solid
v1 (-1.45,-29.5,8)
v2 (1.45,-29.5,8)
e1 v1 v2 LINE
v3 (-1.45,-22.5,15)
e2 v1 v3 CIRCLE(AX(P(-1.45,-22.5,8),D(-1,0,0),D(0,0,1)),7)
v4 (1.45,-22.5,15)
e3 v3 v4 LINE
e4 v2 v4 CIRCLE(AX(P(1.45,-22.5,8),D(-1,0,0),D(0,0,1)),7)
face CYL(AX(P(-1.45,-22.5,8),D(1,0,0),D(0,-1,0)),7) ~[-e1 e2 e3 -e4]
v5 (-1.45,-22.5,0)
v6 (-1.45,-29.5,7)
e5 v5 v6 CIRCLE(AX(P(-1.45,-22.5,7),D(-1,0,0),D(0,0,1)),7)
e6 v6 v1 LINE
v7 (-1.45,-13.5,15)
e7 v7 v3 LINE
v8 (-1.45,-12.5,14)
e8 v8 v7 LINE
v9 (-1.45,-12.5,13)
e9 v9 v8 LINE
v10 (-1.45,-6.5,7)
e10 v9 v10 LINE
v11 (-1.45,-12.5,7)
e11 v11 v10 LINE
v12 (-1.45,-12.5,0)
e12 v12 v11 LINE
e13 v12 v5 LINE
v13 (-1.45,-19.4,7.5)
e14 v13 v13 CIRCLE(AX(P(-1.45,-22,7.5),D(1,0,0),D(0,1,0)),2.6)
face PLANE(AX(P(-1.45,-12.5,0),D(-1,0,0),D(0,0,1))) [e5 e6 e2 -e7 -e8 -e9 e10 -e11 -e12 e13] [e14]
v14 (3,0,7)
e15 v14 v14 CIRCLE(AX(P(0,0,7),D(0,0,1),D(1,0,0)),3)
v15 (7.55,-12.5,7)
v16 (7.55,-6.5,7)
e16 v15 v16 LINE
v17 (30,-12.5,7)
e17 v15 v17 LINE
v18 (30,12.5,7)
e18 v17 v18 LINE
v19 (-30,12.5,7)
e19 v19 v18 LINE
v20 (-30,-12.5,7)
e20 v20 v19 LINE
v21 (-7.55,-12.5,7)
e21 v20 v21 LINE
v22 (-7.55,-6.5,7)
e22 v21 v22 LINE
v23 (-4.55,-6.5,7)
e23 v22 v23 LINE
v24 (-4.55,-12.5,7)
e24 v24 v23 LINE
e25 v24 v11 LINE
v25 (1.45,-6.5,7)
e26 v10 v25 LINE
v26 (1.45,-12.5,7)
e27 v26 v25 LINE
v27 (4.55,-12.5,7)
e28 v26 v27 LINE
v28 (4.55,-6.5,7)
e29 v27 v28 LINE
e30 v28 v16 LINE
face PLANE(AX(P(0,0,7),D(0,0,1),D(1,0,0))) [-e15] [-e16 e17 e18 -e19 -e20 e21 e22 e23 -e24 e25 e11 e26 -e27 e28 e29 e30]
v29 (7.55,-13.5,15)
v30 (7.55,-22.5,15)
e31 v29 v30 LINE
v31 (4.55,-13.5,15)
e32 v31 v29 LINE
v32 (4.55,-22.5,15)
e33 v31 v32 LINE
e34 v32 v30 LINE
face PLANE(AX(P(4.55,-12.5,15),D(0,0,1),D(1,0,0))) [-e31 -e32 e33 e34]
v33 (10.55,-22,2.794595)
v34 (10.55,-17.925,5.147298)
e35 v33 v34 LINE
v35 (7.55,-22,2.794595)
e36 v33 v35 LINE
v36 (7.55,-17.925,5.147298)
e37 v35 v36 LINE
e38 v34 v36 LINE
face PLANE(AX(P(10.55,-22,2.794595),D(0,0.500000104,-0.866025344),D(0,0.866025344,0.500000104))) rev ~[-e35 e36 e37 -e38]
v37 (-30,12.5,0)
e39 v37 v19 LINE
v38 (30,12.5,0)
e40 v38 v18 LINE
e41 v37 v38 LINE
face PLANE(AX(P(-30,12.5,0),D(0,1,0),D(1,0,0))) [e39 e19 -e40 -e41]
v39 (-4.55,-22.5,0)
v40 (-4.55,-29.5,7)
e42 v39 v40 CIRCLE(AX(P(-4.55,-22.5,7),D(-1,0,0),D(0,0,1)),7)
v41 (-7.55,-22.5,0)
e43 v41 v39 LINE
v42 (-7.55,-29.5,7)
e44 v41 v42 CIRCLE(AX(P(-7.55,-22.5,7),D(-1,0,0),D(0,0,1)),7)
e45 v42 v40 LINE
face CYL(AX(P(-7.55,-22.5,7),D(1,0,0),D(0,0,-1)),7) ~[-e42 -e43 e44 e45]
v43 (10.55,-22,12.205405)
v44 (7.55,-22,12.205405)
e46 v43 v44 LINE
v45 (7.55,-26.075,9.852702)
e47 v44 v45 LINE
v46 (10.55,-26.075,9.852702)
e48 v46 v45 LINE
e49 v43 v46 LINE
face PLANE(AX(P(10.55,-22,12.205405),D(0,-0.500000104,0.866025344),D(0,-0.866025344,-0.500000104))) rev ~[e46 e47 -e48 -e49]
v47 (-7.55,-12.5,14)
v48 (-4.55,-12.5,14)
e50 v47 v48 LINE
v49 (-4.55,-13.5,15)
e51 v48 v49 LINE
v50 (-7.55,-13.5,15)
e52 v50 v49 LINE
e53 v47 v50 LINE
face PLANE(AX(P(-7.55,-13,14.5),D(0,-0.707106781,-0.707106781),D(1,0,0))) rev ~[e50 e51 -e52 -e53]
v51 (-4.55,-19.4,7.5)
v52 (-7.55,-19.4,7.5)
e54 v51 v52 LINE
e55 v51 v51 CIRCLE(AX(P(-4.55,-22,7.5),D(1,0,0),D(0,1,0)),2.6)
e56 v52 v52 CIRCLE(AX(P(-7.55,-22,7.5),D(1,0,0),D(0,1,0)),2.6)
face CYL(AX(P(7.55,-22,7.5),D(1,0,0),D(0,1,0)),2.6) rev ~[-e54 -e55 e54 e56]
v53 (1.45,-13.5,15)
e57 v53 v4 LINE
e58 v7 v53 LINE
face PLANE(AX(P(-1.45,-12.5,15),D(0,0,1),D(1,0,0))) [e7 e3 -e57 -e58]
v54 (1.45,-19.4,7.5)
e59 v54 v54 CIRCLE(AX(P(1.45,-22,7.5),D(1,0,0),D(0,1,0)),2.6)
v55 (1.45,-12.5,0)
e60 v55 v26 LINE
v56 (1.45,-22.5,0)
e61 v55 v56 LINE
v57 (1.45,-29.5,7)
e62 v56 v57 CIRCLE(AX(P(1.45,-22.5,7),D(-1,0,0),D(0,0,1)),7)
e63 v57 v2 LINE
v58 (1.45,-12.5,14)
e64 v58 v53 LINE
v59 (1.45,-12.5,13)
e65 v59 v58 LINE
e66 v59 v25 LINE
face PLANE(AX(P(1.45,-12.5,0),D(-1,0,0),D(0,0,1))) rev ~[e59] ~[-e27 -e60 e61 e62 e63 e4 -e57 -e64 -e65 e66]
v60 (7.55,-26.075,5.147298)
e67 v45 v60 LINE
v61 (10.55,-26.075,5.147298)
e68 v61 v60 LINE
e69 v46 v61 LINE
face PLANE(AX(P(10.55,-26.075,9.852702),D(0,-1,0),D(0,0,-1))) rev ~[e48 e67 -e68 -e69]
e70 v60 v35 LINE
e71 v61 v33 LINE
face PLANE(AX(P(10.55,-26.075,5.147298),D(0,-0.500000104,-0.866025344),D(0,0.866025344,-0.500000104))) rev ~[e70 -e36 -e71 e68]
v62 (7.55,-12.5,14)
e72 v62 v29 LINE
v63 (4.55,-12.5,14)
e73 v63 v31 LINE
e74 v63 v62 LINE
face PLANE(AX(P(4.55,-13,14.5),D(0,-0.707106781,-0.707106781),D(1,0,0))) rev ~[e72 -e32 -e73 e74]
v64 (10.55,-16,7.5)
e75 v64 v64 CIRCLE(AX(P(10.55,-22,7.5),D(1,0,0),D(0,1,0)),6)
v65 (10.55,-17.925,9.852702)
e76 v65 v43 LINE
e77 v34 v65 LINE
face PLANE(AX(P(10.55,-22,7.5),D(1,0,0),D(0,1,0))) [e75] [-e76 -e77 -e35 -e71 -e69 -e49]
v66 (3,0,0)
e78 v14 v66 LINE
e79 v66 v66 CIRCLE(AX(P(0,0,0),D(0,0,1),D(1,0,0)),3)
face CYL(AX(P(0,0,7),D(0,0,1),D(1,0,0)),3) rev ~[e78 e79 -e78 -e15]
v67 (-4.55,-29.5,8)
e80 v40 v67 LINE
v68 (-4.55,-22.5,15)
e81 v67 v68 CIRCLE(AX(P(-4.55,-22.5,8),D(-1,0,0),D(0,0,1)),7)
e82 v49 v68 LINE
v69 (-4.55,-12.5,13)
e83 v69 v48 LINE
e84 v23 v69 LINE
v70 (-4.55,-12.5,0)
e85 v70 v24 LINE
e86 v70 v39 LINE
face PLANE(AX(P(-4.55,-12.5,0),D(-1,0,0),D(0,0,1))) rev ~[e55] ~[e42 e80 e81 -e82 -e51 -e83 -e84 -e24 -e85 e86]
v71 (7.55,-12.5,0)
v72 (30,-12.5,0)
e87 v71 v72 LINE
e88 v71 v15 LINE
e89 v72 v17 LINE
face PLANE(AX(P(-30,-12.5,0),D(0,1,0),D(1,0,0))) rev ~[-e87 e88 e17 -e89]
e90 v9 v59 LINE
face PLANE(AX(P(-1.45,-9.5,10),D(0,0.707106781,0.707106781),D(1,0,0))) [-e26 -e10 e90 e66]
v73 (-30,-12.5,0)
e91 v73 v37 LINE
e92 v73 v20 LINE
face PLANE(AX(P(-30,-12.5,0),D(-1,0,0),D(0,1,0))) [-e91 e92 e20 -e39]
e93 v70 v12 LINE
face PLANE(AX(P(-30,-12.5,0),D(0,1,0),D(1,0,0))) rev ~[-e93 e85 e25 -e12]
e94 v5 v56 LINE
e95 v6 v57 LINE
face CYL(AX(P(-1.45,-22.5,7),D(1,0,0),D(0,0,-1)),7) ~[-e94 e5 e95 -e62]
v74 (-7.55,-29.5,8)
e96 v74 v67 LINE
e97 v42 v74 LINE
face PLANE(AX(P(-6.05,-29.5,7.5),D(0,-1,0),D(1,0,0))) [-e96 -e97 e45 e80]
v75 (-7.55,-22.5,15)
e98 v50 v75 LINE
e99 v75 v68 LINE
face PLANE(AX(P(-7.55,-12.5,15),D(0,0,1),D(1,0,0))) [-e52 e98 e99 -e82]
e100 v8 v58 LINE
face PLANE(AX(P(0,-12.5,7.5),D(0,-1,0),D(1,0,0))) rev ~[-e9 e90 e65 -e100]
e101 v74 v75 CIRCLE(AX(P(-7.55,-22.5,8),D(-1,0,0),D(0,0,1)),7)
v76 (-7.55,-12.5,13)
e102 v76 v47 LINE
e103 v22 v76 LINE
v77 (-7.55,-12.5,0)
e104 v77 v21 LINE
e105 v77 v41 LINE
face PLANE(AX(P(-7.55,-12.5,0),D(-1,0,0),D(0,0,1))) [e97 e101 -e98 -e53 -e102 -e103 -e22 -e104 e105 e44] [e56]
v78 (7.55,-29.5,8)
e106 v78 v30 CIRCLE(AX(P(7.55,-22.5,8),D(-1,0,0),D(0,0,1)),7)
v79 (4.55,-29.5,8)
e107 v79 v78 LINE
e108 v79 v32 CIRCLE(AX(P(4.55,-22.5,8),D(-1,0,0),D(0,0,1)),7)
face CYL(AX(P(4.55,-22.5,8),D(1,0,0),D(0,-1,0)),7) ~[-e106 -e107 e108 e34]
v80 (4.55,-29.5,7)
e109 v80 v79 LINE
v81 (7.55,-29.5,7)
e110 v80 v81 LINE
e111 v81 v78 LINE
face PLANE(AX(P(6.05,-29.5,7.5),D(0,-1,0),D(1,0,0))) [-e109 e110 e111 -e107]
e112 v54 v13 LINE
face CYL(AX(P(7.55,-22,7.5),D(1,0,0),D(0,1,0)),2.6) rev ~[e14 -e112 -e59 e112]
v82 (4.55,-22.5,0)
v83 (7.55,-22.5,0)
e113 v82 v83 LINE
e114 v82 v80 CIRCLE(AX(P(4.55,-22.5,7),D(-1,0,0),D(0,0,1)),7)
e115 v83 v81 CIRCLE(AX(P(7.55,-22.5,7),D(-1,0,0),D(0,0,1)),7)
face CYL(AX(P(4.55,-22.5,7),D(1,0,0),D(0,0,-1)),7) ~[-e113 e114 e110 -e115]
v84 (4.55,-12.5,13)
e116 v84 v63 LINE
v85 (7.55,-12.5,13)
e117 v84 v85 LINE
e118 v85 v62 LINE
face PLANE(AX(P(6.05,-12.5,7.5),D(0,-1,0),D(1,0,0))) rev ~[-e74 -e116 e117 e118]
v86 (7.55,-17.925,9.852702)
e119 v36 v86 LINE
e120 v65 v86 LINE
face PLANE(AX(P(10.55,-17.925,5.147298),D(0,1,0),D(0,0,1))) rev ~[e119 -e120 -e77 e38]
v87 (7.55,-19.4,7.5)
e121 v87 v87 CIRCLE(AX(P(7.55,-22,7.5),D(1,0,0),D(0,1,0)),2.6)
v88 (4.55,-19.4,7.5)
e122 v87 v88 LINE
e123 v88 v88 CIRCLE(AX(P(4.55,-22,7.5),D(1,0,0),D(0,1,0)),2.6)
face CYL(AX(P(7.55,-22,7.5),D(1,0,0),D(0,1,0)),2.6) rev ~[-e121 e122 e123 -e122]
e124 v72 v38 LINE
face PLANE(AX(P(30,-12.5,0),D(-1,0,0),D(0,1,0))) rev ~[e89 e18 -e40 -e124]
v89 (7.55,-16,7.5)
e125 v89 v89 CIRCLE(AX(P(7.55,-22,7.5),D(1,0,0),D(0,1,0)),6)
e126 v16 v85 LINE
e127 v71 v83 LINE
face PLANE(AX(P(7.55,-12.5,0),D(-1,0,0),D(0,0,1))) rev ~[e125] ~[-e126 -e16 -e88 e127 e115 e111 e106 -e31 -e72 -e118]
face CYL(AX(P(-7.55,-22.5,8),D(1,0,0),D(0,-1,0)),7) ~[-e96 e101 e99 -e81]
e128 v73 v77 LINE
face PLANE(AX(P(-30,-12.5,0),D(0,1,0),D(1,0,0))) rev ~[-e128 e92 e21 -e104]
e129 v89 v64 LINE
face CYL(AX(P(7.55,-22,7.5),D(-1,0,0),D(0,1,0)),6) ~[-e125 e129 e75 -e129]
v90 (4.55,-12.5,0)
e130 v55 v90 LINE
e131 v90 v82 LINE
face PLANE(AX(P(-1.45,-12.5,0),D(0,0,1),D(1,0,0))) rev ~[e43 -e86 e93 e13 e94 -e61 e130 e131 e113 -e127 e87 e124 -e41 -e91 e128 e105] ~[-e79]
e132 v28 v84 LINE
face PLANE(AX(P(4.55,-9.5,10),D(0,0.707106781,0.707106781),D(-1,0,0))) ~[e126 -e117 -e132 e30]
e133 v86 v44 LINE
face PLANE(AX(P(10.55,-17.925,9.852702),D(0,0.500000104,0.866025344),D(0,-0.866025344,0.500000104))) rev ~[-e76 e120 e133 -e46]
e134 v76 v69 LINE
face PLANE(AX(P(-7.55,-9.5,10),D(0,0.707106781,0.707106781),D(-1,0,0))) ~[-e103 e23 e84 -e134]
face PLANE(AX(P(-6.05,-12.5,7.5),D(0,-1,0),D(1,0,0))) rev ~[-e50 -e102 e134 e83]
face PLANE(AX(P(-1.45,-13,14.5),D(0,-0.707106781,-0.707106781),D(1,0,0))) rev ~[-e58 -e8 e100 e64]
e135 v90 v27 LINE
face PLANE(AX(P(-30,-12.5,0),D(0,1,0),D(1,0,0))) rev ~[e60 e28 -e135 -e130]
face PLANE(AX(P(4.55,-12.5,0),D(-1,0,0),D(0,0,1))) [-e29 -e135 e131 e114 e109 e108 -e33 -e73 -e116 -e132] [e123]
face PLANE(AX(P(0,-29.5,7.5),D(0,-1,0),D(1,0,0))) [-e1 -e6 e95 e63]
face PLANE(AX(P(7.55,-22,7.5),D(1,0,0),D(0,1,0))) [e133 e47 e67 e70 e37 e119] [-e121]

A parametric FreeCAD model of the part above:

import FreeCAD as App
import Part
import Sketcher
from FreeCAD import Vector
Q = App.Units.Quantity


def edges_at(feature, points):
    """Names of the edges that pass closest to the given points."""
    edges = feature.Shape.Edges
    near = lambda p: min(range(len(edges)), key=lambda i: edges[i].distToShape(Part.Vertex(*p))[0])
    return sorted({f"Edge{near(p) + 1}" for p in points})


def add_polygon(sketch, points):
    """Adds a closed chain of lines whose ends are joined by coincident constraints."""
    first, n = sketch.GeometryCount, len(points)
    for a, b in zip(points, points[1:] + points[:1]):
        sketch.addGeometry(Part.LineSegment(App.Vector(*a, 0), App.Vector(*b, 0)), False)
    for i in range(n):
        sketch.addConstraint(Sketcher.Constraint("Coincident", first + i, 2, first + (i + 1) % n, 1))

doc = App.newDocument("Part")
body = doc.addObject("PartDesign::Body", "Body")

# Sketch on XY plane
sketch1 = body.newObject("Sketcher::SketchObject", "Sketch")
sketch1.AttachmentSupport = (doc.getObject("XY_Plane"), [""])
sketch1.MapMode = "FlatFace"
add_polygon(sketch1, [(-30, 12), (-30, -12), (30, -12), (30, 12)])  # lines 0-3
sketch1.addConstraint(Sketcher.Constraint("Vertical", 0))
sketch1.addConstraint(Sketcher.Constraint("Horizontal", 1))
sketch1.addConstraint(Sketcher.Constraint("Vertical", 2))
sketch1.addConstraint(Sketcher.Constraint("Horizontal", 3))
sketch1.addConstraint(Sketcher.Constraint("Symmetric", 0, 2, 2, 2, -1, 1))
sketch1.addConstraint(Sketcher.Constraint("DistanceX", 1, 1, 1, 2, Q("60 mm")))
sketch1.addConstraint(Sketcher.Constraint("DistanceY", 0, 2, 0, 1, Q("25 mm")))
pad1 = body.newObject("PartDesign::Pad", "Pad")
pad1.Profile = sketch1
pad1.Length = 7

# Sketch on XY plane
sketch2 = body.newObject("Sketcher::SketchObject", "Sketch001")
sketch2.AttachmentSupport = (doc.getObject("XY_Plane"), [""])
sketch2.MapMode = "FlatFace"
sketch2.AttachmentOffset = App.Placement(Vector(0, 0, 7), App.Rotation())
sketch2.addGeometry(Part.Circle(Vector(0, 0, 0), Vector(0, 0, 1), 3), False)
sketch2.addConstraint(Sketcher.Constraint("Coincident", 0, 3, -1, 1))
sketch2.addConstraint(Sketcher.Constraint("Diameter", 0, Q("6 mm")))
pocket1 = body.newObject("PartDesign::Pocket", "Pocket")
pocket1.Profile = sketch2
pocket1.Type = "ThroughAll"

# Sketch on XZ plane
sketch3 = body.newObject("Sketcher::SketchObject", "Sketch002")
sketch3.AttachmentSupport = (doc.getObject("XZ_Plane"), [""])
sketch3.MapMode = "FlatFace"
sketch3.AttachmentOffset = App.Placement(Vector(0, 0, 12.5), App.Rotation())
add_polygon(sketch3, [(-1.4, 15), (-1.4, 0), (1.4, 0), (1.4, 15)])  # lines 0-3
add_polygon(sketch3, [(4.5, 15), (4.5, 0), (7.5, 0), (7.5, 15)])  # lines 4-7
add_polygon(sketch3, [(-7.5, 15), (-7.5, 0), (-4.5, 0), (-4.5, 15)])  # lines 8-11
sketch3.addConstraint(Sketcher.Constraint("Vertical", 0))
sketch3.addConstraint(Sketcher.Constraint("Horizontal", 1))
sketch3.addConstraint(Sketcher.Constraint("Vertical", 2))
sketch3.addConstraint(Sketcher.Constraint("Horizontal", 3))
sketch3.addConstraint(Sketcher.Constraint("Vertical", 4))
sketch3.addConstraint(Sketcher.Constraint("Horizontal", 5))
sketch3.addConstraint(Sketcher.Constraint("Vertical", 6))
sketch3.addConstraint(Sketcher.Constraint("Horizontal", 7))
sketch3.addConstraint(Sketcher.Constraint("Vertical", 8))
sketch3.addConstraint(Sketcher.Constraint("Horizontal", 9))
sketch3.addConstraint(Sketcher.Constraint("Vertical", 10))
sketch3.addConstraint(Sketcher.Constraint("Horizontal", 11))
sketch3.addConstraint(Sketcher.Constraint("Symmetric", 0, 2, 1, 2, -1, 1))
sketch3.addConstraint(Sketcher.Constraint("Symmetric", 5, 2, 8, 2, -1, 1))
sketch3.addConstraint(Sketcher.Constraint("Symmetric", 4, 2, 9, 2, -2))
sketch3.addConstraint(Sketcher.Constraint("Horizontal", 3, 2, 6, 2))
sketch3.addConstraint(Sketcher.Constraint("Horizontal", 7, 2, 10, 2))
sketch3.addConstraint(Sketcher.Constraint("DistanceX", 5, 1, 5, 2, Q("3 mm")))
sketch3.addConstraint(Sketcher.Constraint("DistanceY", 0, 2, 0, 1, Q("15 mm")))
sketch3.addConstraint(Sketcher.Constraint("DistanceX", 1, 1, 1, 2, Q("2.9 mm")))
sketch3.addConstraint(Sketcher.Constraint("DistanceX", 0, 2, 4, 2, Q("6 mm")))
pad2 = body.newObject("PartDesign::Pad", "Pad001")
pad2.Profile = sketch3
pad2.Length = 17

# Sketch on YZ plane
sketch4 = body.newObject("Sketcher::SketchObject", "Sketch003")
sketch4.AttachmentSupport = (doc.getObject("YZ_Plane"), [""])
sketch4.MapMode = "FlatFace"
sketch4.AttachmentOffset = App.Placement(Vector(0, 0, 7.55), App.Rotation())
sketch4.addGeometry(Part.Circle(Vector(-22, 8, 0), Vector(0, 0, 1), 6), False)
sketch4.addConstraint(Sketcher.Constraint("Diameter", 0, Q("12 mm")))
sketch4.addConstraint(Sketcher.Constraint("DistanceX", 0, 3, -1, 1, Q("22 mm")))
sketch4.addConstraint(Sketcher.Constraint("DistanceY", -1, 1, 0, 3, Q("7.5 mm")))
pad3 = body.newObject("PartDesign::Pad", "Pad002")
pad3.Profile = sketch4
pad3.Length = 3

# Sketch on YZ plane
sketch5 = body.newObject("Sketcher::SketchObject", "Sketch004")
sketch5.AttachmentSupport = (doc.getObject("YZ_Plane"), [""])
sketch5.MapMode = "FlatFace"
sketch5.AttachmentOffset = App.Placement(Vector(0, 0, 10.55), App.Rotation())
add_polygon(sketch5, [(-17.9, 9.9), (-22, 12.2), (-26.1, 9.9), (-26.1, 5.1), (-22, 2.8), (-17.9, 5.1)])  # lines 0-5
sketch5.addConstraint(Sketcher.Constraint("Vertical", 2))
sketch5.addConstraint(Sketcher.Constraint("Vertical", 5))
sketch5.addConstraint(Sketcher.Constraint("Parallel", 0, 3))
sketch5.addConstraint(Sketcher.Constraint("Parallel", 1, 4))
sketch5.addConstraint(Sketcher.Constraint("Horizontal", 2, 2, 4, 2))
sketch5.addConstraint(Sketcher.Constraint("Horizontal", 1, 2, 5, 2))
sketch5.addConstraint(Sketcher.Constraint("Vertical", 0, 2, 3, 2))
sketch5.addConstraint(Sketcher.Constraint("Angle", 0, Q("149.999993 deg")))
sketch5.addConstraint(Sketcher.Constraint("DistanceX", 0, 2, -1, 1, Q("22 mm")))
sketch5.addConstraint(Sketcher.Constraint("DistanceX", 2, 2, 4, 2, Q("8.15 mm")))
sketch5.addConstraint(Sketcher.Constraint("DistanceY", 2, 2, 2, 1, Q("4.705404 mm")))
sketch5.addConstraint(Sketcher.Constraint("DistanceY", -1, 1, 0, 2, Q("12.205405 mm")))
pocket2 = body.newObject("PartDesign::Pocket", "Pocket001")
pocket2.Profile = sketch5
pocket2.Length = 3

# Sketch on YZ plane
sketch6 = body.newObject("Sketcher::SketchObject", "Sketch005")
sketch6.AttachmentSupport = (doc.getObject("YZ_Plane"), [""])
sketch6.MapMode = "FlatFace"
sketch6.AttachmentOffset = App.Placement(Vector(0, 0, 7.55), App.Rotation())
sketch6.addGeometry(Part.Circle(Vector(-22, 7.5, 0), Vector(0, 0, 1), 2.6), False)
sketch6.addConstraint(Sketcher.Constraint("Diameter", 0, Q("5.2 mm")))
sketch6.addConstraint(Sketcher.Constraint("DistanceX", 0, 3, -1, 1, Q("22 mm")))
sketch6.addConstraint(Sketcher.Constraint("DistanceY", -1, 1, 0, 3, Q("7.5 mm")))
pocket3 = body.newObject("PartDesign::Pocket", "Pocket002")
pocket3.Profile = sketch6
pocket3.Type = "ThroughAll"
doc.recompute()

fillet = body.newObject("PartDesign::Fillet", "Fillet")
fillet.Base = (pocket3, edges_at(pocket3, [
    (0, -29.5, 15),
    (-6.05, -29.5, 15),
    (6.05, -29.5, 15),
    (6.05, -29.5, 0),
    (0, -29.5, 0),
    (-6.05, -29.5, 0),
]))
fillet.Radius = 7
doc.recompute()

chamfer = body.newObject("PartDesign::Chamfer", "Chamfer")
chamfer.Base = (fillet, edges_at(fillet, [(6.05, -12.5, 7), (0, -12.5, 7), (-6.05, -12.5, 7)]))
chamfer.Size = 6
doc.recompute()

chamfer2 = body.newObject("PartDesign::Chamfer", "Chamfer001")
chamfer2.Base = (chamfer, edges_at(chamfer, [(6.05, -12.5, 15), (0, -12.5, 15), (-6.05, -12.5, 15)]))
chamfer2.Size = 1

doc.recompute()
